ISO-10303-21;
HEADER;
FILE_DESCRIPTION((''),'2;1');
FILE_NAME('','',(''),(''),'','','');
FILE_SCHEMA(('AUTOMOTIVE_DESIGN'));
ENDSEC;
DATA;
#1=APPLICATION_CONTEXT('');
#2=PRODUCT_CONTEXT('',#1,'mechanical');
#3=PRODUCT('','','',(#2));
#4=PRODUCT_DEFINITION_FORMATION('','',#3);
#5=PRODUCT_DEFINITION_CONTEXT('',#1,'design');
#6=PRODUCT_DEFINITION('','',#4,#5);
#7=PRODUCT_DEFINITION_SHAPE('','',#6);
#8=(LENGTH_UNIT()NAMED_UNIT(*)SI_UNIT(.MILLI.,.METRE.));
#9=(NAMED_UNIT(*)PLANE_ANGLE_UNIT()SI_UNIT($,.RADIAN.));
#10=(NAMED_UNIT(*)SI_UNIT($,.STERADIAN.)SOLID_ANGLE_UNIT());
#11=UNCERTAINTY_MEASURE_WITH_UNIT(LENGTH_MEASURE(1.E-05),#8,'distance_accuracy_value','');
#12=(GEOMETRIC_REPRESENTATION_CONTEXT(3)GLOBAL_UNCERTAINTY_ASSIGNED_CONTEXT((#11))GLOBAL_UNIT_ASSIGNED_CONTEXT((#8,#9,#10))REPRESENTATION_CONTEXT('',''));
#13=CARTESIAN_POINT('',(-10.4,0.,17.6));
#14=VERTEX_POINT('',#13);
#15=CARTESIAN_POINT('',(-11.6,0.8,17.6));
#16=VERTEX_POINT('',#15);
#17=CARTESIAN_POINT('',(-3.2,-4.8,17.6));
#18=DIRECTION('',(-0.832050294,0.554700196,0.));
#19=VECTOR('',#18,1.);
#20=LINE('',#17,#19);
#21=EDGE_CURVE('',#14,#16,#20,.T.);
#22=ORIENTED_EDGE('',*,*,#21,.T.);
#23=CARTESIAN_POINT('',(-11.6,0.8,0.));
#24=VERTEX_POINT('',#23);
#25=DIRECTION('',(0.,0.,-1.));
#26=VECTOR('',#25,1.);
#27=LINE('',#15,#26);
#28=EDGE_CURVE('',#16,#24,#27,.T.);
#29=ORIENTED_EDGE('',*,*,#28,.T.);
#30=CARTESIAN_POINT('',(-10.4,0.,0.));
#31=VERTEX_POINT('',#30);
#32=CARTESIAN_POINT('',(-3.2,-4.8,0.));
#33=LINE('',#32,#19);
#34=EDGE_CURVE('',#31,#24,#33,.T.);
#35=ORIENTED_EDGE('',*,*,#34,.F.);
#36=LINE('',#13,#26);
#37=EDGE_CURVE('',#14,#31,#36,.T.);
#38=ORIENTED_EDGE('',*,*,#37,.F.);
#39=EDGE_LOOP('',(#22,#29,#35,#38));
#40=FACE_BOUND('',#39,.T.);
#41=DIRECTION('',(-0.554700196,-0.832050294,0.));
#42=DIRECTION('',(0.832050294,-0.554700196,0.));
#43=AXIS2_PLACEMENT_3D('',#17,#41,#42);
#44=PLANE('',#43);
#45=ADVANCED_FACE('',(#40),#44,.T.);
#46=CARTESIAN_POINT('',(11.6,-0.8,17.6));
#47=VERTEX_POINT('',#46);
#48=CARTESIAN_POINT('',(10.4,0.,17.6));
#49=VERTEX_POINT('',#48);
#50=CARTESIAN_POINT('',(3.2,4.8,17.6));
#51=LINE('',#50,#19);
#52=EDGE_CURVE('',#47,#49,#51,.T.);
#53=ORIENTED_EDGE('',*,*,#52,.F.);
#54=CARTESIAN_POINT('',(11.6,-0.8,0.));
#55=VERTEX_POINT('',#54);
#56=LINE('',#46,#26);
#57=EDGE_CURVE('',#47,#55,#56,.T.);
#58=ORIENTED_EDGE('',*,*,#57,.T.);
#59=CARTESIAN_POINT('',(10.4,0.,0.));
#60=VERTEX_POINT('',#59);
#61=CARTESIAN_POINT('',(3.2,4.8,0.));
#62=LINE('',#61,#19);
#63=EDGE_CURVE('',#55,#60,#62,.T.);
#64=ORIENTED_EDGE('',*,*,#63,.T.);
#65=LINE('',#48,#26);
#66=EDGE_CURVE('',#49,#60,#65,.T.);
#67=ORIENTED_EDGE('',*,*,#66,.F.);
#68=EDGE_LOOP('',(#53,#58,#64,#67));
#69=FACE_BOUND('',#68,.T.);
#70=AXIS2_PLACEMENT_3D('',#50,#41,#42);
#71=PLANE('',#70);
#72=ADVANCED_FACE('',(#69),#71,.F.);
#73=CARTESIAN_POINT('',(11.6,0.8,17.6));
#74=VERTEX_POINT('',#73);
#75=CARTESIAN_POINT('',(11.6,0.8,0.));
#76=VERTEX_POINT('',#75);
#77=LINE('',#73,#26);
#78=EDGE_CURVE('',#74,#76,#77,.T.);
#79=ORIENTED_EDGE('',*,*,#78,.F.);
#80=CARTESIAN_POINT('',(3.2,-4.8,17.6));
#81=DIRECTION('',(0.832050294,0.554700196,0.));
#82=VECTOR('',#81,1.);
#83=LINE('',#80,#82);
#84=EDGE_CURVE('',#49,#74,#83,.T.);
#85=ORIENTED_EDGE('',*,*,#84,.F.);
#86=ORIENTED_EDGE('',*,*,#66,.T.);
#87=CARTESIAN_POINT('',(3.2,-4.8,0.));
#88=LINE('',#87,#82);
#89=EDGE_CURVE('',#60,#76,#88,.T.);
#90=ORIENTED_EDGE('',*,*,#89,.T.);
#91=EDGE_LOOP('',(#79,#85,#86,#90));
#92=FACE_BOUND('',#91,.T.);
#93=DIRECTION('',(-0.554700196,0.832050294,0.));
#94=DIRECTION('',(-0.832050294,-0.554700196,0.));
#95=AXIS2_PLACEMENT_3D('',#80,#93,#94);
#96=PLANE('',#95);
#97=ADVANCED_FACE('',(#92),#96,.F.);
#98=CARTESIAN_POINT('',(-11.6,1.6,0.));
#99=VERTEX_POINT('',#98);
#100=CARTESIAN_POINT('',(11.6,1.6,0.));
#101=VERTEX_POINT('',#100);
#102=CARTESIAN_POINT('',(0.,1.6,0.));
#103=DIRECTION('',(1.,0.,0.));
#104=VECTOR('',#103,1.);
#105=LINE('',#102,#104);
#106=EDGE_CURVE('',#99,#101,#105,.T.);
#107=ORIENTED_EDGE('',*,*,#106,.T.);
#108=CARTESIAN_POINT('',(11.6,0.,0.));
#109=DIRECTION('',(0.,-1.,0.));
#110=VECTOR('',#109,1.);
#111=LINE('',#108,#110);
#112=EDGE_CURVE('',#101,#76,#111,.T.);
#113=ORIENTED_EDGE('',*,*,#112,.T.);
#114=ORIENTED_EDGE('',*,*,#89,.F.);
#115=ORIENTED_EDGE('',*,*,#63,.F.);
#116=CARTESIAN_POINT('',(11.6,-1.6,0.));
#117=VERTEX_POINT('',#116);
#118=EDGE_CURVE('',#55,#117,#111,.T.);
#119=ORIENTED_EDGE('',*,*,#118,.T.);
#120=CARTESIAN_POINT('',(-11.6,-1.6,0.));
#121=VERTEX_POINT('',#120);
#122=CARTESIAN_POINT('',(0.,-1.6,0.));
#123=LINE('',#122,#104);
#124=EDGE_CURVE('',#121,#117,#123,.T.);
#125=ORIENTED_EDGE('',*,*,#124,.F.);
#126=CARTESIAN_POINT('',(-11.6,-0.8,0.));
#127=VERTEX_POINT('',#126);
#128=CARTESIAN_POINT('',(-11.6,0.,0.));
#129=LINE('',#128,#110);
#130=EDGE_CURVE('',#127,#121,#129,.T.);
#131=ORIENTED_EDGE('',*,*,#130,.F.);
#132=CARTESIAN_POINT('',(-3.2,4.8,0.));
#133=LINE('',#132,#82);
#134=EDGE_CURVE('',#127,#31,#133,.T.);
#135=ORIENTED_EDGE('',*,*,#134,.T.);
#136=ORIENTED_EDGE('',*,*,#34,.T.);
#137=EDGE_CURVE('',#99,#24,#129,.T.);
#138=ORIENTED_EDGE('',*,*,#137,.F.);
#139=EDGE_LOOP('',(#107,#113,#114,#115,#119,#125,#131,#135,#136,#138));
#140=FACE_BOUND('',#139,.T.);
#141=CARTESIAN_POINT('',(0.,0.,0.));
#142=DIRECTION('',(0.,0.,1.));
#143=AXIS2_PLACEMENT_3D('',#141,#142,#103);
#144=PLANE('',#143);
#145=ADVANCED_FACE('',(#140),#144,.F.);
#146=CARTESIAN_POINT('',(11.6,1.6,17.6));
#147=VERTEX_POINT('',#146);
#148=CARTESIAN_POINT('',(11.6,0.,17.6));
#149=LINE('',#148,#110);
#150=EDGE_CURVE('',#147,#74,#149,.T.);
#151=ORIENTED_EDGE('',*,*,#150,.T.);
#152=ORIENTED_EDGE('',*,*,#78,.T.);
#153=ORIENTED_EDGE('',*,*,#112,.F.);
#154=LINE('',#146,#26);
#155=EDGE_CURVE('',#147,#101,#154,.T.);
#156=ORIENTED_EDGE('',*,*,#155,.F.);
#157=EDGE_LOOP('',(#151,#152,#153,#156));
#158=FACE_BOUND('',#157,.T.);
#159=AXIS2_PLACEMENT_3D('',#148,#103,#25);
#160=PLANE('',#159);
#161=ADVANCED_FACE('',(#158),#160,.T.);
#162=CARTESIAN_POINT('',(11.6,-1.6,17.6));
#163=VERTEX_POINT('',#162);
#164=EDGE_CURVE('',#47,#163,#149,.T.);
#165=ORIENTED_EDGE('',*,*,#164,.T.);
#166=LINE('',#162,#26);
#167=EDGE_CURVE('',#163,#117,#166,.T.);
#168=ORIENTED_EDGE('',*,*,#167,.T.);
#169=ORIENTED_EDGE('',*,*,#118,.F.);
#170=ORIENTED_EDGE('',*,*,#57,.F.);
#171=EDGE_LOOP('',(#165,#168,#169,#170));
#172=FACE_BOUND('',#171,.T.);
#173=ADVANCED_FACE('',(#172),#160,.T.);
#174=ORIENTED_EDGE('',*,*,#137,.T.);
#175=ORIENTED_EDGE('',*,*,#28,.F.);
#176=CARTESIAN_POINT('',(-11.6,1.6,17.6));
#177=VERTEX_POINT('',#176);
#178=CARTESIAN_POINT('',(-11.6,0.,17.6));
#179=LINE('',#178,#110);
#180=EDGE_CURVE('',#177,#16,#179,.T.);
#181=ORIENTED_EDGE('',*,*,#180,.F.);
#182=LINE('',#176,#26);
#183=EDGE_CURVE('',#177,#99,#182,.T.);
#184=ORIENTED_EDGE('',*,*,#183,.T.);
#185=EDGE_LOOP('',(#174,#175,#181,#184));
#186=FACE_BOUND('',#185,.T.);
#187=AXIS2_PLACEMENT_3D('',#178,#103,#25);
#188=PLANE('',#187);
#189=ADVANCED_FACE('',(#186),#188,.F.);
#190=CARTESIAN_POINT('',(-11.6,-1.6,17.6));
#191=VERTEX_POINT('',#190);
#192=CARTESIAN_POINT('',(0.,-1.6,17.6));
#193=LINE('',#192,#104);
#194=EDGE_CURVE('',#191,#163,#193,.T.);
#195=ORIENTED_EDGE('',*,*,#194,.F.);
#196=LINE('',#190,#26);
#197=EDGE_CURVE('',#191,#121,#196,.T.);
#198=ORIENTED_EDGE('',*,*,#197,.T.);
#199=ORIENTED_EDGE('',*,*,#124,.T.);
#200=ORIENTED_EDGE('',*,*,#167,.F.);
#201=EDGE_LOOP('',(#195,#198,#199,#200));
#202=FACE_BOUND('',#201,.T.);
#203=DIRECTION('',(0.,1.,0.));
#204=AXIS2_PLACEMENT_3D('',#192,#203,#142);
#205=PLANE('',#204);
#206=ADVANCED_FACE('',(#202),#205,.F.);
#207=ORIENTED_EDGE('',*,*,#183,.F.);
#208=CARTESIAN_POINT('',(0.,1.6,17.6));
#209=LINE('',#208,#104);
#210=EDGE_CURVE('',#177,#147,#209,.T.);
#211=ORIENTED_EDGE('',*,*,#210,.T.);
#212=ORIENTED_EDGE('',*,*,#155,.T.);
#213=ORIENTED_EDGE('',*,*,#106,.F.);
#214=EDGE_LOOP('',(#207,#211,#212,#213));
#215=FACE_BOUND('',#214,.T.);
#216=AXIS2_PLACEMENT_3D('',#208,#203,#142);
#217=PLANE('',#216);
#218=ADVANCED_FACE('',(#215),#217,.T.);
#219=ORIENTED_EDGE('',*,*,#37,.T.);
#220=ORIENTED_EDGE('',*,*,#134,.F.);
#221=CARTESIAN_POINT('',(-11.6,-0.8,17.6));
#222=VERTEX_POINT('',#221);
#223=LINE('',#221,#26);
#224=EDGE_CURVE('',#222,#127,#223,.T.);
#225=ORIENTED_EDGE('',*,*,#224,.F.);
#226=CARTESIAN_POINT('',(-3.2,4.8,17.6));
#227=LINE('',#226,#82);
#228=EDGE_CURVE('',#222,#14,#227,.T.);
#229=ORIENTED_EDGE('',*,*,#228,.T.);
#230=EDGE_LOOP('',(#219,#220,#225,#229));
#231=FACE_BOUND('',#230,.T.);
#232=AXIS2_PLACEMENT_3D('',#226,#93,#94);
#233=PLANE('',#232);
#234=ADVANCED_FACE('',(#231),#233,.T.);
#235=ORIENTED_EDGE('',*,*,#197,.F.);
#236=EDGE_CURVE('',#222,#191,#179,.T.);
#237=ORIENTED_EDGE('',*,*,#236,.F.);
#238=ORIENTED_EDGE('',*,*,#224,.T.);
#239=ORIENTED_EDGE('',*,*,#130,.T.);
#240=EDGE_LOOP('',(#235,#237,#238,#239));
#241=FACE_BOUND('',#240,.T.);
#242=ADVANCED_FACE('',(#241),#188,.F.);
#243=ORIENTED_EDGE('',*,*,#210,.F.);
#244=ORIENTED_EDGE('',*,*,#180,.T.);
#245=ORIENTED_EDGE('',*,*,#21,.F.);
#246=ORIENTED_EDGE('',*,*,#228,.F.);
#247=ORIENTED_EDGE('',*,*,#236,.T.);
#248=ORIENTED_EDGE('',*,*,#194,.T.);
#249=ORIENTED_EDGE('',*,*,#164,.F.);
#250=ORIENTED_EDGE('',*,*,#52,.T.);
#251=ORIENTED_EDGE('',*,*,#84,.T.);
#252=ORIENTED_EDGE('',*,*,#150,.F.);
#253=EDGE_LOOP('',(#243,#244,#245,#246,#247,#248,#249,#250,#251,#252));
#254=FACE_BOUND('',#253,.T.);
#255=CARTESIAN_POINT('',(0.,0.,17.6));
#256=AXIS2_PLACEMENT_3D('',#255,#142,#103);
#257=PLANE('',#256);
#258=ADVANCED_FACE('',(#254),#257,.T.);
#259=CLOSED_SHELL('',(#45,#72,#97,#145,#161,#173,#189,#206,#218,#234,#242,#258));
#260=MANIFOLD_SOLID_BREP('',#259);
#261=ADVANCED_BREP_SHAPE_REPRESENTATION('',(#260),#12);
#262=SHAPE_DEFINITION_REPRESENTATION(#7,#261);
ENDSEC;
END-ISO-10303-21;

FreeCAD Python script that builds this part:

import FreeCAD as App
import Part
import Sketcher


def add_polygon(sketch, points):
    """Adds a closed chain of lines whose ends are joined by coincident constraints."""
    first, n = sketch.GeometryCount, len(points)
    for a, b in zip(points, points[1:] + points[:1]):
        sketch.addGeometry(Part.LineSegment(App.Vector(*a, 0), App.Vector(*b, 0)), False)
    for i in range(n):
        sketch.addConstraint(Sketcher.Constraint("Coincident", first + i, 2, first + (i + 1) % n, 1))

doc = App.newDocument("Part")
params = doc.addObject("Spreadsheet::Sheet", "Params")
for row, (alias, value) in enumerate([
    ("sketch1_width", "23.2 mm"),
    ("sketch1_height", "0.8 mm"),
    ("pad1_length", "17.6 mm"),
], start=1):
    params.set(f"A{row}", alias)
    params.set(f"B{row}", "=" + value)
    params.setAlias(f"B{row}", alias)

body = doc.addObject("PartDesign::Body", "Body")

sketch1 = body.newObject("Sketcher::SketchObject", "Sketch")
sketch1.AttachmentSupport = (doc.getObject("XY_Plane"), [""])
sketch1.MapMode = "FlatFace"
add_polygon(sketch1, [(11.6, -1.6), (11.6, -0.8), (10.4, 0), (11.6, 0.8), (11.6, 1.6), (-11.6, 1.6), (-11.6, 0.8), (-10.4, 0), (-11.6, -0.8), (-11.6, -1.6)])
sketch1.addConstraint([
    Sketcher.Constraint("Vertical", 0),
    Sketcher.Constraint("Vertical", 3),
    Sketcher.Constraint("Horizontal", 4),
    Sketcher.Constraint("Vertical", 5),
    Sketcher.Constraint("Vertical", 8),
    Sketcher.Constraint("Horizontal", 9),
    Sketcher.Constraint("Symmetric", 0, 2, 5, 2, -1, 1),
    Sketcher.Constraint("Symmetric", 1, 2, 6, 2, -1, 1),
    Sketcher.Constraint("Symmetric", 2, 2, 7, 2, -1, 1),
    Sketcher.Constraint("Symmetric", 2, 2, 5, 2, -2),
    Sketcher.Constraint("PointOnObject", 1, 2, -1),
    Sketcher.Constraint("Equal", 0, 3),
    Sketcher.Constraint("DistanceX", 4, 2, 4, 1, 23.2),
    Sketcher.Constraint("DistanceY", 0, 1, 0, 2, 0.8),
    Sketcher.Constraint("DistanceX", 4, 2, 1, 2, 22.0),
    Sketcher.Constraint("DistanceY", 0, 2, -1, 1, 0.8),
])
sketch1.setExpression("Constraints[22]", "Params.sketch1_width")
sketch1.setExpression("Constraints[23]", "Params.sketch1_height")
pad1 = body.newObject("PartDesign::Pad", "Pad")
pad1.Profile = sketch1
pad1.setExpression("Length", "Params.pad1_length")

doc.recompute()
